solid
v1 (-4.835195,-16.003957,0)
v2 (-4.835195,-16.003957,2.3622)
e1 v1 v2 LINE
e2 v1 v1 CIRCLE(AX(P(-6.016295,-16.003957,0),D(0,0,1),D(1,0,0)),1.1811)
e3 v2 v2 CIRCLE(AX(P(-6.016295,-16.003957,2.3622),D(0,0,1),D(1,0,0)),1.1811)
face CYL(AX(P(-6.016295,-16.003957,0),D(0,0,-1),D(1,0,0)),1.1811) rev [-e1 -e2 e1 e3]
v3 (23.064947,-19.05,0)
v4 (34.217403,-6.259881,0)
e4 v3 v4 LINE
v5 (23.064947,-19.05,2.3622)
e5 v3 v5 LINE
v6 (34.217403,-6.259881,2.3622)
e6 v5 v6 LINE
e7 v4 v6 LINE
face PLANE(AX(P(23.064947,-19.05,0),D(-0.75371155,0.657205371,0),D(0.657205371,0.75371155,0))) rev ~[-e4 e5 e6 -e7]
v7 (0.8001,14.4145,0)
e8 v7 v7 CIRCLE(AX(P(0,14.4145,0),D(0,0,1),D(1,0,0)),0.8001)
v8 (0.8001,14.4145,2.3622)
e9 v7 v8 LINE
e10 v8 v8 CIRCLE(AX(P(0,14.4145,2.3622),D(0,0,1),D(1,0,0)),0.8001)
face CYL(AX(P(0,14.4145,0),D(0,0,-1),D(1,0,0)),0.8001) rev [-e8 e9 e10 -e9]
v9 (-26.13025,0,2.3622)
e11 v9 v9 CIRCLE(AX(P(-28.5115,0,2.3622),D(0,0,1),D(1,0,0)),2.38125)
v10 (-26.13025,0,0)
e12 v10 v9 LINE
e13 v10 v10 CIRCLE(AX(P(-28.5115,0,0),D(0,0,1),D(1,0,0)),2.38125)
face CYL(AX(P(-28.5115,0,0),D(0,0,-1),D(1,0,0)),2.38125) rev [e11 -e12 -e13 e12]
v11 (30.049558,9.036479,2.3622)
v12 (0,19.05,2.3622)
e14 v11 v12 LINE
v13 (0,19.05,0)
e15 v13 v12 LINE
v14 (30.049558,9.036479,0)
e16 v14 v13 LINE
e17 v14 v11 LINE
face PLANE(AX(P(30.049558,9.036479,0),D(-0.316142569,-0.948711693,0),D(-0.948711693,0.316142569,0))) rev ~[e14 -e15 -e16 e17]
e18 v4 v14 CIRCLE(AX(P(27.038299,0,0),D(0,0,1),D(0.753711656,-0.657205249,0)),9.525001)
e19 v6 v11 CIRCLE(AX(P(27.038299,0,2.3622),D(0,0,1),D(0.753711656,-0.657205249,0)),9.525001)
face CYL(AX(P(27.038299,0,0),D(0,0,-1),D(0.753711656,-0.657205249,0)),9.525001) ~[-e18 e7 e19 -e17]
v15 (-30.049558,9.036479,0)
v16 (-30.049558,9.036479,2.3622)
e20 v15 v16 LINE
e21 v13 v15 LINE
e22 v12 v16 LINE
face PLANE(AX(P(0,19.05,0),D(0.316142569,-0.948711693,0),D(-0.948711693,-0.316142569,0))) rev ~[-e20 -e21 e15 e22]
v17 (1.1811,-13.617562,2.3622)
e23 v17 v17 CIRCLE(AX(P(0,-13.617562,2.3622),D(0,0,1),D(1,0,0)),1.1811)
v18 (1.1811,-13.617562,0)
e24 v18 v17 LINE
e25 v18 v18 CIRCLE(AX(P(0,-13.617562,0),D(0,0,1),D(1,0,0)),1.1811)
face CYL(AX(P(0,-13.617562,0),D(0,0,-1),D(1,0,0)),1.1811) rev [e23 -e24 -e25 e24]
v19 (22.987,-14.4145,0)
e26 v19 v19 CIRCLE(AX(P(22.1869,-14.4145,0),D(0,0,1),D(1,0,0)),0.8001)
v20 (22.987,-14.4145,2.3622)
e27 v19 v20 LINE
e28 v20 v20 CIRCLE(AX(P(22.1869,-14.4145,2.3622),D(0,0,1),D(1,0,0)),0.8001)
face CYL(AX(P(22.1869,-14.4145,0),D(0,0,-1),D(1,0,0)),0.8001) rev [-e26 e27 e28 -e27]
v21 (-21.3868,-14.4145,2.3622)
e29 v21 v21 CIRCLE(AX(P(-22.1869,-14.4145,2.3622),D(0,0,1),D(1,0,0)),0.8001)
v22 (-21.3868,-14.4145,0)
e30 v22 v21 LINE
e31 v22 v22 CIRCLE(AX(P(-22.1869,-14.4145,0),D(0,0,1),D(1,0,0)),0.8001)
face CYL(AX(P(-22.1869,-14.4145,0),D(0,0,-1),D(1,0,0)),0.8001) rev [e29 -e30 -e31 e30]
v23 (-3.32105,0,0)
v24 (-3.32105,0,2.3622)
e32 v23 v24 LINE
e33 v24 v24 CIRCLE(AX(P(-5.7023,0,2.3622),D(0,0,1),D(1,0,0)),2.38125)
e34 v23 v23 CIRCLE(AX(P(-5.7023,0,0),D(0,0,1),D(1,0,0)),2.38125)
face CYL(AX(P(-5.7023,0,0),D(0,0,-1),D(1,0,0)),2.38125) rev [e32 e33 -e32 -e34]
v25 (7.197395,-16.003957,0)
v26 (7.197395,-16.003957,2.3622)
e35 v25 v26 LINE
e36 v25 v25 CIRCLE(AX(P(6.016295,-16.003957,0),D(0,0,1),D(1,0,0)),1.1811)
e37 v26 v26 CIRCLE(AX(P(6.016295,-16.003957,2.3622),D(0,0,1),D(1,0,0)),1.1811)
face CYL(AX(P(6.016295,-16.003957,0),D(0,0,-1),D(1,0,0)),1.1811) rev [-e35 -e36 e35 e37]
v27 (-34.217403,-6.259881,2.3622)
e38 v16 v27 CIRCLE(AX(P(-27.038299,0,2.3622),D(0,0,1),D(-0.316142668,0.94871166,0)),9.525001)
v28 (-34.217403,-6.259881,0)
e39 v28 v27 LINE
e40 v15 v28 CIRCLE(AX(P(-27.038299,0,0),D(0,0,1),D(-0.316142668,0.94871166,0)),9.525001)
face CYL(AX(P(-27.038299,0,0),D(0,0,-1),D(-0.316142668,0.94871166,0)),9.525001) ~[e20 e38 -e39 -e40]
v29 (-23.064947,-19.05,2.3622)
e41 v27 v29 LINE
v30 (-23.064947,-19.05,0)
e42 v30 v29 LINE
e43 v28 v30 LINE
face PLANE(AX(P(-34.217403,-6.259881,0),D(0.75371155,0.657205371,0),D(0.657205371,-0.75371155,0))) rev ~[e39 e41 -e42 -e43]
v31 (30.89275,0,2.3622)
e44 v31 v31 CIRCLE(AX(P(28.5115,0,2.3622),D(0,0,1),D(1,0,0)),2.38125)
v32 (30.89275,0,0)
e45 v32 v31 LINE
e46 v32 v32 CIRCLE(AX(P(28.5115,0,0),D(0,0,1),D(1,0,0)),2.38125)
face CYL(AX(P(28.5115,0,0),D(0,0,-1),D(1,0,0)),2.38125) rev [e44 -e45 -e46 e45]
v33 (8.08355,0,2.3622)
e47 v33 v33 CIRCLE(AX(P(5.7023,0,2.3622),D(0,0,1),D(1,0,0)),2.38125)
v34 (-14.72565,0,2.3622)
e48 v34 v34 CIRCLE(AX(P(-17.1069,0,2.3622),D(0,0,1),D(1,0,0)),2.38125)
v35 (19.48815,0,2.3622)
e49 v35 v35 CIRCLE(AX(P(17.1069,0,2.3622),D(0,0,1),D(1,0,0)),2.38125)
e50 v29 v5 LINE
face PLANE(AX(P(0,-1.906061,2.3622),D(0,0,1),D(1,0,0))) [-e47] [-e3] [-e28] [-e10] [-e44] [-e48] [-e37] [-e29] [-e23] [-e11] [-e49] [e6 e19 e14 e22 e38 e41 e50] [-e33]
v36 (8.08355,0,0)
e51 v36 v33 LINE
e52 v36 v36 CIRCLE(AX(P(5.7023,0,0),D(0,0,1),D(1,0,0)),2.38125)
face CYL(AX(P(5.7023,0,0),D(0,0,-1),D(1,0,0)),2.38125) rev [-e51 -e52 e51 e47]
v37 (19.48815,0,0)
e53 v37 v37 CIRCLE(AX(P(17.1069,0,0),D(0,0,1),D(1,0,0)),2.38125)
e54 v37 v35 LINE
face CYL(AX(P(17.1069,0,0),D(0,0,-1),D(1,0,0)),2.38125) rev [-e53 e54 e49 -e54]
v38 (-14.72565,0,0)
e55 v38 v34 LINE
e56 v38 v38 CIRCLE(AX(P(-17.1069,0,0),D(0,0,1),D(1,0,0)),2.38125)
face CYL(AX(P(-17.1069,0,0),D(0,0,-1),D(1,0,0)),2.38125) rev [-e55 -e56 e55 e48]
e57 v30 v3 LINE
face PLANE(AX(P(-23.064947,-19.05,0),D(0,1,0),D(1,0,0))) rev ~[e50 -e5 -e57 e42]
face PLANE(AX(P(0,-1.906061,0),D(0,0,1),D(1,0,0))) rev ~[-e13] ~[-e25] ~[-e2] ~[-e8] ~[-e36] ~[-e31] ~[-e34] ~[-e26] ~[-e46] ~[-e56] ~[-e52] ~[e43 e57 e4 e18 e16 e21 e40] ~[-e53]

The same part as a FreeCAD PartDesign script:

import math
import FreeCAD as App
import Part
import Sketcher

V = App.Vector
Q = App.Units.Quantity

doc = App.newDocument("Part")
body = doc.addObject("PartDesign::Body", "Body")

sketch1 = doc.addObject("Sketcher::SketchObject", "Sketch")
body.addObject(sketch1)
sketch1.AttachmentSupport = (doc.XY_Plane, [""])
sketch1.MapMode = "FlatFace"
sketch1.addGeometry([
    Part.LineSegment(V(-23.064947, -19.05, 0), V(23.064947, -19.05, 0)),
    Part.LineSegment(V(23.064947, -19.05, 0), V(34.217403, -6.259881, 0)),
    Part.ArcOfCircle(Part.Circle(V(27.038299, 0, 0), V(0, 0, 1), 9.525001), math.radians(-41.087076), math.radians(71.570191)),
    Part.LineSegment(V(30.049558, 9.036479, 0), V(0, 19.05, 0)),
    Part.LineSegment(V(0, 19.05, 0), V(-30.049558, 9.036479, 0)),
    Part.ArcOfCircle(Part.Circle(V(-27.038299, 0, 0), V(0, 0, 1), 9.525001), math.radians(108.429809), math.radians(221.087076)),
    Part.LineSegment(V(-34.217403, -6.259881, 0), V(-23.064947, -19.05, 0)),
    Part.Circle(V(-22.1869, -14.4145, 0), V(0, 0, 1), 0.8001),
    Part.Circle(V(-6.016295, -16.003957, 0), V(0, 0, 1), 1.1811),
    Part.Circle(V(0, -13.617562, 0), V(0, 0, 1), 1.1811),
    Part.Circle(V(6.016295, -16.003957, 0), V(0, 0, 1), 1.1811),
    Part.Circle(V(22.1869, -14.4145, 0), V(0, 0, 1), 0.8001),
    Part.Circle(V(-28.5115, 0, 0), V(0, 0, 1), 2.38125),
    Part.Circle(V(-17.1069, 0, 0), V(0, 0, 1), 2.38125),
    Part.Circle(V(-5.7023, 0, 0), V(0, 0, 1), 2.38125),
    Part.Circle(V(0, 14.4145, 0), V(0, 0, 1), 0.8001),
    Part.Circle(V(5.7023, 0, 0), V(0, 0, 1), 2.38125),
    Part.Circle(V(17.1069, 0, 0), V(0, 0, 1), 2.38125),
    Part.Circle(V(28.5115, 0, 0), V(0, 0, 1), 2.38125),
], False)
sketch1.addConstraint([
    Sketcher.Constraint("Coincident", 0, 2, 1, 1),
    Sketcher.Constraint("Tangent", 1, 2, 2, 1),
    Sketcher.Constraint("Tangent", 2, 2, 3, 1),
    Sketcher.Constraint("Coincident", 3, 2, 4, 1),
    Sketcher.Constraint("Tangent", 4, 2, 5, 1),
    Sketcher.Constraint("Tangent", 5, 2, 6, 1),
    Sketcher.Constraint("Coincident", 6, 2, 0, 1),
    Sketcher.Constraint("Horizontal", 0),
    Sketcher.Constraint("Equal", 2, 5),
    Sketcher.Constraint("Equal", 8, 9),
    Sketcher.Constraint("Equal", 9, 10),
    Sketcher.Constraint("Equal", 7, 11),
    Sketcher.Constraint("Equal", 12, 13),
    Sketcher.Constraint("Equal", 13, 14),
    Sketcher.Constraint("Equal", 11, 15),
    Sketcher.Constraint("Equal", 14, 16),
    Sketcher.Constraint("Equal", 16, 17),
    Sketcher.Constraint("Equal", 17, 18),
    Sketcher.Constraint("Symmetric", 2, 3, 5, 3, -1, 1),
    Sketcher.Constraint("Symmetric", 14, 3, 16, 3, -1, 1),
    Sketcher.Constraint("Symmetric", 13, 3, 17, 3, -1, 1),
    Sketcher.Constraint("Symmetric", 12, 3, 18, 3, -1, 1),
    Sketcher.Constraint("Symmetric", 8, 3, 10, 3, -2),
    Sketcher.Constraint("Symmetric", 7, 3, 11, 3, -2),
    Sketcher.Constraint("Symmetric", 2, 2, 4, 2, -2),
    Sketcher.Constraint("PointOnObject", 9, 3, -2),
    Sketcher.Constraint("PointOnObject", 12, 3, -1),
    Sketcher.Constraint("PointOnObject", 13, 3, -1),
    Sketcher.Constraint("PointOnObject", 14, 3, -1),
    Sketcher.Constraint("PointOnObject", 15, 3, -2),
    Sketcher.Constraint("Horizontal", 1, 2, 5, 2),
    Sketcher.Constraint("Diameter", 7, Q("0.063 in")),
    Sketcher.Constraint("Diameter", 8, Q("0.093 in")),
    Sketcher.Constraint("Diameter", 12, Q("0.1875 in")),
    Sketcher.Constraint("Radius", 2, Q("0.375 in")),
    Sketcher.Constraint("DistanceX", 7, 3, 13, 3, Q("0.2 in")),
    Sketcher.Constraint("DistanceY", 0, 2, -1, 1, Q("0.75 in")),
    Sketcher.Constraint("DistanceY", -1, 1, 3, 2, Q("0.75 in")),
    Sketcher.Constraint("DistanceX", 5, 3, 14, 3, Q("0.84 in")),
    Sketcher.Constraint("DistanceX", 5, 3, 2, 3, Q("2.1289999 in")),
    Sketcher.Constraint("DistanceX", 5, 3, 7, 3, Q("0.191 in")),
    Sketcher.Constraint("DistanceX", 12, 3, 5, 3, Q("0.058 in")),
    Sketcher.Constraint("DistanceY", 7, 3, -1, 1, Q("0.5675 in")),
    Sketcher.Constraint("DistanceY", -1, 1, 15, 3, Q("0.5675 in")),
    Sketcher.Constraint("DistanceX", 0, 1, 0, 2, 46.129894),
    Sketcher.Constraint("DistanceY", 7, 3, 9, 3, 0.796938),
    Sketcher.Constraint("DistanceX", 8, 3, 10, 3, 12.03259),
    Sketcher.Constraint("DistanceY", 8, 3, -1, 1, 16.003957),
])
pad1 = doc.addObject("PartDesign::Pad", "Pad")
body.addObject(pad1)
pad1.Profile = sketch1
pad1.Length = Q("0.093 in")

doc.recompute()
